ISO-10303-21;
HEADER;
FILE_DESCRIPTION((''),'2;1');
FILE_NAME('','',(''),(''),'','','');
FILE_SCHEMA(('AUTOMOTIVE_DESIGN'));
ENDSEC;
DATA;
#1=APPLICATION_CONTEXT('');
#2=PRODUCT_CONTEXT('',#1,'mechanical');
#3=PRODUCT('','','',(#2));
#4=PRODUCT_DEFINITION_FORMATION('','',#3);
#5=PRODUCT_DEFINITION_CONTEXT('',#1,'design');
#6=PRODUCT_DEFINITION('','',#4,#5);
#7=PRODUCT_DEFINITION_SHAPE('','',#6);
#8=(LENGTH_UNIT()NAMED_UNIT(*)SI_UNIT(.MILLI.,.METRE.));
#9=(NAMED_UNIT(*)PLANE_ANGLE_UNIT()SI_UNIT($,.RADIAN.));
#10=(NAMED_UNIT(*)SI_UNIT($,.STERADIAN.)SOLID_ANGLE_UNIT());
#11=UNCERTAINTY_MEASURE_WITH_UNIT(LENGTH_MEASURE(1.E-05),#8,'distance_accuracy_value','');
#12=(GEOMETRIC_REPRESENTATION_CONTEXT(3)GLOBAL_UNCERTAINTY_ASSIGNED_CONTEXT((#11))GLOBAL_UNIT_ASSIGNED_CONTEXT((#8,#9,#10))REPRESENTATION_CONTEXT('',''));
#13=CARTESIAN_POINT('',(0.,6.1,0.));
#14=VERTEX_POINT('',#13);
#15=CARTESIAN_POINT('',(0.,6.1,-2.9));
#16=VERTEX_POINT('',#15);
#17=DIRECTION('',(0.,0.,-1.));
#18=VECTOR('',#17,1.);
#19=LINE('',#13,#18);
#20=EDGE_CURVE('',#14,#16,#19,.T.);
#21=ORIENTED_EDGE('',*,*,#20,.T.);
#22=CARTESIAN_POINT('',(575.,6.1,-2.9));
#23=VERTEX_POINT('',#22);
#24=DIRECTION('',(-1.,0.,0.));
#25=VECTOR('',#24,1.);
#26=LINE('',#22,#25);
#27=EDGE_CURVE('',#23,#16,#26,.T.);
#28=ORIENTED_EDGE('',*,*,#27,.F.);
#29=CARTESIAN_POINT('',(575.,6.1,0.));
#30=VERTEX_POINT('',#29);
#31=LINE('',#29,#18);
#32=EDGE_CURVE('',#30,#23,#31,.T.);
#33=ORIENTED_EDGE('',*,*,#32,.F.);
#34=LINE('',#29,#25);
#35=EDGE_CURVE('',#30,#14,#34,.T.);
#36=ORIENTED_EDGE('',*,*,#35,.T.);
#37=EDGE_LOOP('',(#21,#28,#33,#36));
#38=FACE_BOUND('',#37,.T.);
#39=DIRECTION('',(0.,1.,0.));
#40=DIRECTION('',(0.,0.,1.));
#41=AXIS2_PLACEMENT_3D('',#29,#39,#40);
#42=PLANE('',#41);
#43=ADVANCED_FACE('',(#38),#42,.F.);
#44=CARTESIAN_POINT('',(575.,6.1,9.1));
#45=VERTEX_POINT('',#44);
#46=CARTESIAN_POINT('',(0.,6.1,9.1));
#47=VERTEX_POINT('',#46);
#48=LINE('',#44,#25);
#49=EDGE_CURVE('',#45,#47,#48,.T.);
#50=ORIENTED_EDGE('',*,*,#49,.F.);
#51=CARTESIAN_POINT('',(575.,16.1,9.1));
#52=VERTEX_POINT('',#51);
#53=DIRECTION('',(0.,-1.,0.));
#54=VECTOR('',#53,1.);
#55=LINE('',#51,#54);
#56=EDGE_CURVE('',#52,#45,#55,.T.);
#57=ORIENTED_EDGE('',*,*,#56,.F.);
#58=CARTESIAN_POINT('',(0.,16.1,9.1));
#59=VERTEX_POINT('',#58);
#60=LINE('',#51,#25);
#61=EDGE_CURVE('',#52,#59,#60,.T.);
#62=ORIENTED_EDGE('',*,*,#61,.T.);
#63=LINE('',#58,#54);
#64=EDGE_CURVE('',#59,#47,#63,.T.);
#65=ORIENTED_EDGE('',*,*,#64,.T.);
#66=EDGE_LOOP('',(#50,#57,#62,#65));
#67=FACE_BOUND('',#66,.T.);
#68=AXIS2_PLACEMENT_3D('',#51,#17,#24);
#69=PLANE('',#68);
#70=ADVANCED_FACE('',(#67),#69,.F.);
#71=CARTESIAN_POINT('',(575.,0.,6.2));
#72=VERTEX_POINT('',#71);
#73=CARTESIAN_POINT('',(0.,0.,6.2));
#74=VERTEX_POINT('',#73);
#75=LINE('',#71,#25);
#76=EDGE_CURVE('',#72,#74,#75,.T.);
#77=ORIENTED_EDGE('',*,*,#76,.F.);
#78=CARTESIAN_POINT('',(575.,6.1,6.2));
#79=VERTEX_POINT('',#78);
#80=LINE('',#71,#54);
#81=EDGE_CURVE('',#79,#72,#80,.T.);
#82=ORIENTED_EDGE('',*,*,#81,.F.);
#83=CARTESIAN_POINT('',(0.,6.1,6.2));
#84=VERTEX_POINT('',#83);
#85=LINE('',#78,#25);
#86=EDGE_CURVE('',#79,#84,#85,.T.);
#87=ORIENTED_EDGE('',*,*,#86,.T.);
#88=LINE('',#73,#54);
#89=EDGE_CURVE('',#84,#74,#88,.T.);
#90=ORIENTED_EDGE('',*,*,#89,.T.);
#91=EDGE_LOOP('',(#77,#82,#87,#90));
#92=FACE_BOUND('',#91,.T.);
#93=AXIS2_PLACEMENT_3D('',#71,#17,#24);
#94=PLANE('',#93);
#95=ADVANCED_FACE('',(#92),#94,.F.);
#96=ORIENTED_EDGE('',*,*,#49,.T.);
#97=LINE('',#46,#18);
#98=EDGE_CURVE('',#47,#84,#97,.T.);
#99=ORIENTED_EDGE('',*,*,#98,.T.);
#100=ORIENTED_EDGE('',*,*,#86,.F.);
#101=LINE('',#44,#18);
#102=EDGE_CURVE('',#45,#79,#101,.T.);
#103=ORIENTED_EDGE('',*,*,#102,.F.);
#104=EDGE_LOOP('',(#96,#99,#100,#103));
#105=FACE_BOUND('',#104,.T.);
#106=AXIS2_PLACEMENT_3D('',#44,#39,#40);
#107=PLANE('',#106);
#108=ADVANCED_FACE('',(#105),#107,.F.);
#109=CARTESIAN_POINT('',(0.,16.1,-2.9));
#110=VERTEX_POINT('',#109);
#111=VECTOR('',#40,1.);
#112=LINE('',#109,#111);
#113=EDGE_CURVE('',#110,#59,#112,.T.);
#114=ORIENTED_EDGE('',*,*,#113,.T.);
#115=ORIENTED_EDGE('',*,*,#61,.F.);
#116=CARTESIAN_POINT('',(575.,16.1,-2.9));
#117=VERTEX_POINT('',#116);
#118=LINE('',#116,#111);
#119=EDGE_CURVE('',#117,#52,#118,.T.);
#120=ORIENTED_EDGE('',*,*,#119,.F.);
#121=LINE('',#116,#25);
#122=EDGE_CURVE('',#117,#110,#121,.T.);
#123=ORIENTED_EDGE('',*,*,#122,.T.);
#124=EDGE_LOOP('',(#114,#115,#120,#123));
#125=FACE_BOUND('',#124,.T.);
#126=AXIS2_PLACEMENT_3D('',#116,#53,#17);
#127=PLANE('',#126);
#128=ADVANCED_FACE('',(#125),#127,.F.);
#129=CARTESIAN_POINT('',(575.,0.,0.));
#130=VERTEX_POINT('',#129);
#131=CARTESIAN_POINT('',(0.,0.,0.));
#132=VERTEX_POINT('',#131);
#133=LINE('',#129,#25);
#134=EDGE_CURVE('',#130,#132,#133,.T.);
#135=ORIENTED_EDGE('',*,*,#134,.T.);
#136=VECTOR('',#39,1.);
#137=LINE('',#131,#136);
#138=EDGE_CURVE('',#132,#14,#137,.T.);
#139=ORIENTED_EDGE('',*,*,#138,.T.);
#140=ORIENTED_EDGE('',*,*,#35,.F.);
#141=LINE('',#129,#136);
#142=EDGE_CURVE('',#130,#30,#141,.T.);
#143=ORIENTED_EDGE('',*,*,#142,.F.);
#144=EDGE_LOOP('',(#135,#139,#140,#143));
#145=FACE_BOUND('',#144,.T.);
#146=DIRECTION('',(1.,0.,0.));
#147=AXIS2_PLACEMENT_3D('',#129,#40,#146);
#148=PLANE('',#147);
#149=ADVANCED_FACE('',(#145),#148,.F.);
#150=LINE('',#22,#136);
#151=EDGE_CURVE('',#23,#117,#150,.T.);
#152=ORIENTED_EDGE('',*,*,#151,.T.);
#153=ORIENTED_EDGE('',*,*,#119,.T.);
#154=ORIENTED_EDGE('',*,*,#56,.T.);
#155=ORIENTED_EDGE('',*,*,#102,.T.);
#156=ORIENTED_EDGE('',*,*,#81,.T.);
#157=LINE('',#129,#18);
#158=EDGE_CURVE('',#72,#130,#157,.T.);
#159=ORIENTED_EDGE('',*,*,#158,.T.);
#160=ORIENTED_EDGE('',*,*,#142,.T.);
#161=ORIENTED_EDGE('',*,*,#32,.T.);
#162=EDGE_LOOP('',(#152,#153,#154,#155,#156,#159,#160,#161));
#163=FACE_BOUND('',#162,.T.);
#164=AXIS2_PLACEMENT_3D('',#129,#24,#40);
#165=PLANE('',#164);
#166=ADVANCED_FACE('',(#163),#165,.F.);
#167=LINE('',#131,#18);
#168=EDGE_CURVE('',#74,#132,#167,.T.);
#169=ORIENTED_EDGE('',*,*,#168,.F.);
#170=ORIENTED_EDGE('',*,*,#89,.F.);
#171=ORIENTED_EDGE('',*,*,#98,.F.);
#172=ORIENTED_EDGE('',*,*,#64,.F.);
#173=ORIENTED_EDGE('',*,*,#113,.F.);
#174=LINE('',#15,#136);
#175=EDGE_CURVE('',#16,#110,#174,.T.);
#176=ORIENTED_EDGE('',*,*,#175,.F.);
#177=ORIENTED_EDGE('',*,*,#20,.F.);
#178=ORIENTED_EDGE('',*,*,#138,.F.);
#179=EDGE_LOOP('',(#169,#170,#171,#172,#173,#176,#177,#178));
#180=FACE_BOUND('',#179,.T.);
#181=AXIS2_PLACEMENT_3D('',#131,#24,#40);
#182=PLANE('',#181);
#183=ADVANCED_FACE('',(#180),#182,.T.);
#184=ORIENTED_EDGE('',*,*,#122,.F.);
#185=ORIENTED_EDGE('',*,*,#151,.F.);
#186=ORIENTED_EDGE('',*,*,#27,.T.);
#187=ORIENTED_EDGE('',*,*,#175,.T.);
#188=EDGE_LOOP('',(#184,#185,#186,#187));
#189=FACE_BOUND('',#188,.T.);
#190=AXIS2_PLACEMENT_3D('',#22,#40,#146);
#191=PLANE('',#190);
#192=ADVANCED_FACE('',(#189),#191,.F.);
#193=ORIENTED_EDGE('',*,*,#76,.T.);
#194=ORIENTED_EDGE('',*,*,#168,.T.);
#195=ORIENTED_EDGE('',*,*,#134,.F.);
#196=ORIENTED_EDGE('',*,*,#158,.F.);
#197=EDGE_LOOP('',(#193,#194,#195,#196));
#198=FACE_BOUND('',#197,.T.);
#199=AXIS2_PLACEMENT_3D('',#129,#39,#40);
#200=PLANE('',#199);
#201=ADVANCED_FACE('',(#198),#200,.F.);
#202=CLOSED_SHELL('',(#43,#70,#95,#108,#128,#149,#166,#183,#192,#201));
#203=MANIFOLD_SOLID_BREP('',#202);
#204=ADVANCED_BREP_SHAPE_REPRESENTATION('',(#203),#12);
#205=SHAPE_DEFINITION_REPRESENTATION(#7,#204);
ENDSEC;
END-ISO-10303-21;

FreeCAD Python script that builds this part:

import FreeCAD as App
import Part
import Sketcher

V = App.Vector
Q = App.Units.Quantity

doc = App.newDocument("Part")
body = doc.addObject("PartDesign::Body", "Body")

sketch1 = body.newObject("Sketcher::SketchObject", "Sketch")
sketch1.AttachmentSupport = (doc.getObject("YZ_Plane"), [""])
sketch1.MapMode = "FlatFace"
sketch1.addGeometry([
    Part.LineSegment(V(6.1, 0, 0), V(6.1, -2.9, 0)),
    Part.LineSegment(V(6.1, -2.9, 0), V(16.1, -2.9, 0)),
    Part.LineSegment(V(16.1, -2.9, 0), V(16.1, 9.1, 0)),
    Part.LineSegment(V(16.1, 9.1, 0), V(6.1, 9.1, 0)),
    Part.LineSegment(V(6.1, 9.1, 0), V(6.1, 6.2, 0)),
    Part.LineSegment(V(6.1, 6.2, 0), V(0, 6.2, 0)),
    Part.LineSegment(V(0, 6.2, 0), V(0, 0, 0)),
    Part.LineSegment(V(0, 0, 0), V(6.1, 0, 0)),
], False)
sketch1.addConstraint([
    Sketcher.Constraint("Coincident", 0, 2, 1, 1),
    Sketcher.Constraint("Coincident", 1, 2, 2, 1),
    Sketcher.Constraint("Coincident", 2, 2, 3, 1),
    Sketcher.Constraint("Coincident", 3, 2, 4, 1),
    Sketcher.Constraint("Coincident", 4, 2, 5, 1),
    Sketcher.Constraint("Coincident", 5, 2, 6, 1),
    Sketcher.Constraint("Coincident", 6, 2, 7, 1),
    Sketcher.Constraint("Coincident", 7, 2, 0, 1),
    Sketcher.Constraint("Vertical", 0),
    Sketcher.Constraint("Horizontal", 1),
    Sketcher.Constraint("Vertical", 2),
    Sketcher.Constraint("Horizontal", 3),
    Sketcher.Constraint("Vertical", 4),
    Sketcher.Constraint("Horizontal", 5),
    Sketcher.Constraint("Vertical", 6),
    Sketcher.Constraint("Horizontal", 7),
    Sketcher.Constraint("Coincident", 6, 2, -1, 1),
    Sketcher.Constraint("Vertical", 0, 2, 3, 2),
    Sketcher.Constraint("Equal", 0, 4),
    Sketcher.Constraint("DistanceX", 1, 1, 1, 2, Q("10 mm")),
    Sketcher.Constraint("DistanceY", 2, 1, 2, 2, Q("12 mm")),
    Sketcher.Constraint("DistanceX", 5, 2, 5, 1, Q("6.1 mm")),
    Sketcher.Constraint("DistanceY", 0, 2, 0, 1, Q("2.9 mm")),
])
pad1 = body.newObject("PartDesign::Pad", "Pad")
pad1.Profile = sketch1
pad1.Length = 575

doc.recompute()
